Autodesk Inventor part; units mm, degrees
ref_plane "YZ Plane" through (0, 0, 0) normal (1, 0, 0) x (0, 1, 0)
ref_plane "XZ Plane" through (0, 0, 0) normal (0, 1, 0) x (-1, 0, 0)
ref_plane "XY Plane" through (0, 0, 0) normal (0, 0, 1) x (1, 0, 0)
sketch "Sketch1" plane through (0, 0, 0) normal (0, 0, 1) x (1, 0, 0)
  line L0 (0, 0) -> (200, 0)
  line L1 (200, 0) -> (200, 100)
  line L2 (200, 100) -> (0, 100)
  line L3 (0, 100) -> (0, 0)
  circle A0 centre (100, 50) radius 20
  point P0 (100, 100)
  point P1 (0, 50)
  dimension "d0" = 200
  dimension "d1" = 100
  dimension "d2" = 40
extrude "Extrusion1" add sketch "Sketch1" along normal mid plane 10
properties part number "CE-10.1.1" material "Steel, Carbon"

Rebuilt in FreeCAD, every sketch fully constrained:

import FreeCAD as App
import Part
import Sketcher
from FreeCAD import Vector

doc = App.newDocument("Part")
params = doc.addObject("Spreadsheet::Sheet", "Params")
for row, (alias, value) in enumerate([
    ("sketch1_diameter", "40 mm"),
    ("sketch1_width", "200 mm"),
    ("sketch1_height", "100 mm"),
    ("pad1_length", "10 mm"),
], start=1):
    params.set(f"A{row}", alias)
    params.set(f"B{row}", "=" + value)
    params.setAlias(f"B{row}", alias)

body = doc.addObject("PartDesign::Body", "Body")

# Sketch on XY plane
sketch1 = doc.addObject("Sketcher::SketchObject", "Sketch")
body.addObject(sketch1)
sketch1.AttachmentSupport = (doc.XY_Plane, [""])
sketch1.MapMode = "FlatFace"
sketch1.addGeometry([
    Part.LineSegment(Vector(0, 100, 0), Vector(0, 0, 0)),  # 0
    Part.LineSegment(Vector(0, 0, 0), Vector(200, 0, 0)),  # 1
    Part.LineSegment(Vector(200, 0, 0), Vector(200, 100, 0)),  # 2
    Part.LineSegment(Vector(200, 100, 0), Vector(0, 100, 0)),  # 3
    Part.Circle(Vector(100, 50, 0), Vector(0, 0, 1), 20),  # 4
], False)
sketch1.addConstraint([
    Sketcher.Constraint("Coincident", 0, 2, 1, 1),
    Sketcher.Constraint("Coincident", 1, 2, 2, 1),
    Sketcher.Constraint("Coincident", 2, 2, 3, 1),
    Sketcher.Constraint("Coincident", 3, 2, 0, 1),
    Sketcher.Constraint("Vertical", 0),
    Sketcher.Constraint("Horizontal", 1),
    Sketcher.Constraint("Vertical", 2),
    Sketcher.Constraint("Horizontal", 3),
    Sketcher.Constraint("Coincident", 0, 2, -1, 1),
    Sketcher.Constraint("Diameter", 4, 40.0),
    Sketcher.Constraint("DistanceX", 1, 1, 1, 2, 200.0),
    Sketcher.Constraint("DistanceY", 0, 2, 0, 1, 100.0),
    Sketcher.Constraint("DistanceX", -1, 1, 4, 3, 100.0),
    Sketcher.Constraint("DistanceY", -1, 1, 4, 3, 50.0),
])
sketch1.setExpression("Constraints[9]", "Params.sketch1_diameter")
sketch1.setExpression("Constraints[10]", "Params.sketch1_width")
sketch1.setExpression("Constraints[11]", "Params.sketch1_height")
pad1 = doc.addObject("PartDesign::Pad", "Pad")
body.addObject(pad1)
pad1.Profile = sketch1
pad1.setExpression("Length", "Params.pad1_length")
pad1.Midplane = True

doc.recompute()
